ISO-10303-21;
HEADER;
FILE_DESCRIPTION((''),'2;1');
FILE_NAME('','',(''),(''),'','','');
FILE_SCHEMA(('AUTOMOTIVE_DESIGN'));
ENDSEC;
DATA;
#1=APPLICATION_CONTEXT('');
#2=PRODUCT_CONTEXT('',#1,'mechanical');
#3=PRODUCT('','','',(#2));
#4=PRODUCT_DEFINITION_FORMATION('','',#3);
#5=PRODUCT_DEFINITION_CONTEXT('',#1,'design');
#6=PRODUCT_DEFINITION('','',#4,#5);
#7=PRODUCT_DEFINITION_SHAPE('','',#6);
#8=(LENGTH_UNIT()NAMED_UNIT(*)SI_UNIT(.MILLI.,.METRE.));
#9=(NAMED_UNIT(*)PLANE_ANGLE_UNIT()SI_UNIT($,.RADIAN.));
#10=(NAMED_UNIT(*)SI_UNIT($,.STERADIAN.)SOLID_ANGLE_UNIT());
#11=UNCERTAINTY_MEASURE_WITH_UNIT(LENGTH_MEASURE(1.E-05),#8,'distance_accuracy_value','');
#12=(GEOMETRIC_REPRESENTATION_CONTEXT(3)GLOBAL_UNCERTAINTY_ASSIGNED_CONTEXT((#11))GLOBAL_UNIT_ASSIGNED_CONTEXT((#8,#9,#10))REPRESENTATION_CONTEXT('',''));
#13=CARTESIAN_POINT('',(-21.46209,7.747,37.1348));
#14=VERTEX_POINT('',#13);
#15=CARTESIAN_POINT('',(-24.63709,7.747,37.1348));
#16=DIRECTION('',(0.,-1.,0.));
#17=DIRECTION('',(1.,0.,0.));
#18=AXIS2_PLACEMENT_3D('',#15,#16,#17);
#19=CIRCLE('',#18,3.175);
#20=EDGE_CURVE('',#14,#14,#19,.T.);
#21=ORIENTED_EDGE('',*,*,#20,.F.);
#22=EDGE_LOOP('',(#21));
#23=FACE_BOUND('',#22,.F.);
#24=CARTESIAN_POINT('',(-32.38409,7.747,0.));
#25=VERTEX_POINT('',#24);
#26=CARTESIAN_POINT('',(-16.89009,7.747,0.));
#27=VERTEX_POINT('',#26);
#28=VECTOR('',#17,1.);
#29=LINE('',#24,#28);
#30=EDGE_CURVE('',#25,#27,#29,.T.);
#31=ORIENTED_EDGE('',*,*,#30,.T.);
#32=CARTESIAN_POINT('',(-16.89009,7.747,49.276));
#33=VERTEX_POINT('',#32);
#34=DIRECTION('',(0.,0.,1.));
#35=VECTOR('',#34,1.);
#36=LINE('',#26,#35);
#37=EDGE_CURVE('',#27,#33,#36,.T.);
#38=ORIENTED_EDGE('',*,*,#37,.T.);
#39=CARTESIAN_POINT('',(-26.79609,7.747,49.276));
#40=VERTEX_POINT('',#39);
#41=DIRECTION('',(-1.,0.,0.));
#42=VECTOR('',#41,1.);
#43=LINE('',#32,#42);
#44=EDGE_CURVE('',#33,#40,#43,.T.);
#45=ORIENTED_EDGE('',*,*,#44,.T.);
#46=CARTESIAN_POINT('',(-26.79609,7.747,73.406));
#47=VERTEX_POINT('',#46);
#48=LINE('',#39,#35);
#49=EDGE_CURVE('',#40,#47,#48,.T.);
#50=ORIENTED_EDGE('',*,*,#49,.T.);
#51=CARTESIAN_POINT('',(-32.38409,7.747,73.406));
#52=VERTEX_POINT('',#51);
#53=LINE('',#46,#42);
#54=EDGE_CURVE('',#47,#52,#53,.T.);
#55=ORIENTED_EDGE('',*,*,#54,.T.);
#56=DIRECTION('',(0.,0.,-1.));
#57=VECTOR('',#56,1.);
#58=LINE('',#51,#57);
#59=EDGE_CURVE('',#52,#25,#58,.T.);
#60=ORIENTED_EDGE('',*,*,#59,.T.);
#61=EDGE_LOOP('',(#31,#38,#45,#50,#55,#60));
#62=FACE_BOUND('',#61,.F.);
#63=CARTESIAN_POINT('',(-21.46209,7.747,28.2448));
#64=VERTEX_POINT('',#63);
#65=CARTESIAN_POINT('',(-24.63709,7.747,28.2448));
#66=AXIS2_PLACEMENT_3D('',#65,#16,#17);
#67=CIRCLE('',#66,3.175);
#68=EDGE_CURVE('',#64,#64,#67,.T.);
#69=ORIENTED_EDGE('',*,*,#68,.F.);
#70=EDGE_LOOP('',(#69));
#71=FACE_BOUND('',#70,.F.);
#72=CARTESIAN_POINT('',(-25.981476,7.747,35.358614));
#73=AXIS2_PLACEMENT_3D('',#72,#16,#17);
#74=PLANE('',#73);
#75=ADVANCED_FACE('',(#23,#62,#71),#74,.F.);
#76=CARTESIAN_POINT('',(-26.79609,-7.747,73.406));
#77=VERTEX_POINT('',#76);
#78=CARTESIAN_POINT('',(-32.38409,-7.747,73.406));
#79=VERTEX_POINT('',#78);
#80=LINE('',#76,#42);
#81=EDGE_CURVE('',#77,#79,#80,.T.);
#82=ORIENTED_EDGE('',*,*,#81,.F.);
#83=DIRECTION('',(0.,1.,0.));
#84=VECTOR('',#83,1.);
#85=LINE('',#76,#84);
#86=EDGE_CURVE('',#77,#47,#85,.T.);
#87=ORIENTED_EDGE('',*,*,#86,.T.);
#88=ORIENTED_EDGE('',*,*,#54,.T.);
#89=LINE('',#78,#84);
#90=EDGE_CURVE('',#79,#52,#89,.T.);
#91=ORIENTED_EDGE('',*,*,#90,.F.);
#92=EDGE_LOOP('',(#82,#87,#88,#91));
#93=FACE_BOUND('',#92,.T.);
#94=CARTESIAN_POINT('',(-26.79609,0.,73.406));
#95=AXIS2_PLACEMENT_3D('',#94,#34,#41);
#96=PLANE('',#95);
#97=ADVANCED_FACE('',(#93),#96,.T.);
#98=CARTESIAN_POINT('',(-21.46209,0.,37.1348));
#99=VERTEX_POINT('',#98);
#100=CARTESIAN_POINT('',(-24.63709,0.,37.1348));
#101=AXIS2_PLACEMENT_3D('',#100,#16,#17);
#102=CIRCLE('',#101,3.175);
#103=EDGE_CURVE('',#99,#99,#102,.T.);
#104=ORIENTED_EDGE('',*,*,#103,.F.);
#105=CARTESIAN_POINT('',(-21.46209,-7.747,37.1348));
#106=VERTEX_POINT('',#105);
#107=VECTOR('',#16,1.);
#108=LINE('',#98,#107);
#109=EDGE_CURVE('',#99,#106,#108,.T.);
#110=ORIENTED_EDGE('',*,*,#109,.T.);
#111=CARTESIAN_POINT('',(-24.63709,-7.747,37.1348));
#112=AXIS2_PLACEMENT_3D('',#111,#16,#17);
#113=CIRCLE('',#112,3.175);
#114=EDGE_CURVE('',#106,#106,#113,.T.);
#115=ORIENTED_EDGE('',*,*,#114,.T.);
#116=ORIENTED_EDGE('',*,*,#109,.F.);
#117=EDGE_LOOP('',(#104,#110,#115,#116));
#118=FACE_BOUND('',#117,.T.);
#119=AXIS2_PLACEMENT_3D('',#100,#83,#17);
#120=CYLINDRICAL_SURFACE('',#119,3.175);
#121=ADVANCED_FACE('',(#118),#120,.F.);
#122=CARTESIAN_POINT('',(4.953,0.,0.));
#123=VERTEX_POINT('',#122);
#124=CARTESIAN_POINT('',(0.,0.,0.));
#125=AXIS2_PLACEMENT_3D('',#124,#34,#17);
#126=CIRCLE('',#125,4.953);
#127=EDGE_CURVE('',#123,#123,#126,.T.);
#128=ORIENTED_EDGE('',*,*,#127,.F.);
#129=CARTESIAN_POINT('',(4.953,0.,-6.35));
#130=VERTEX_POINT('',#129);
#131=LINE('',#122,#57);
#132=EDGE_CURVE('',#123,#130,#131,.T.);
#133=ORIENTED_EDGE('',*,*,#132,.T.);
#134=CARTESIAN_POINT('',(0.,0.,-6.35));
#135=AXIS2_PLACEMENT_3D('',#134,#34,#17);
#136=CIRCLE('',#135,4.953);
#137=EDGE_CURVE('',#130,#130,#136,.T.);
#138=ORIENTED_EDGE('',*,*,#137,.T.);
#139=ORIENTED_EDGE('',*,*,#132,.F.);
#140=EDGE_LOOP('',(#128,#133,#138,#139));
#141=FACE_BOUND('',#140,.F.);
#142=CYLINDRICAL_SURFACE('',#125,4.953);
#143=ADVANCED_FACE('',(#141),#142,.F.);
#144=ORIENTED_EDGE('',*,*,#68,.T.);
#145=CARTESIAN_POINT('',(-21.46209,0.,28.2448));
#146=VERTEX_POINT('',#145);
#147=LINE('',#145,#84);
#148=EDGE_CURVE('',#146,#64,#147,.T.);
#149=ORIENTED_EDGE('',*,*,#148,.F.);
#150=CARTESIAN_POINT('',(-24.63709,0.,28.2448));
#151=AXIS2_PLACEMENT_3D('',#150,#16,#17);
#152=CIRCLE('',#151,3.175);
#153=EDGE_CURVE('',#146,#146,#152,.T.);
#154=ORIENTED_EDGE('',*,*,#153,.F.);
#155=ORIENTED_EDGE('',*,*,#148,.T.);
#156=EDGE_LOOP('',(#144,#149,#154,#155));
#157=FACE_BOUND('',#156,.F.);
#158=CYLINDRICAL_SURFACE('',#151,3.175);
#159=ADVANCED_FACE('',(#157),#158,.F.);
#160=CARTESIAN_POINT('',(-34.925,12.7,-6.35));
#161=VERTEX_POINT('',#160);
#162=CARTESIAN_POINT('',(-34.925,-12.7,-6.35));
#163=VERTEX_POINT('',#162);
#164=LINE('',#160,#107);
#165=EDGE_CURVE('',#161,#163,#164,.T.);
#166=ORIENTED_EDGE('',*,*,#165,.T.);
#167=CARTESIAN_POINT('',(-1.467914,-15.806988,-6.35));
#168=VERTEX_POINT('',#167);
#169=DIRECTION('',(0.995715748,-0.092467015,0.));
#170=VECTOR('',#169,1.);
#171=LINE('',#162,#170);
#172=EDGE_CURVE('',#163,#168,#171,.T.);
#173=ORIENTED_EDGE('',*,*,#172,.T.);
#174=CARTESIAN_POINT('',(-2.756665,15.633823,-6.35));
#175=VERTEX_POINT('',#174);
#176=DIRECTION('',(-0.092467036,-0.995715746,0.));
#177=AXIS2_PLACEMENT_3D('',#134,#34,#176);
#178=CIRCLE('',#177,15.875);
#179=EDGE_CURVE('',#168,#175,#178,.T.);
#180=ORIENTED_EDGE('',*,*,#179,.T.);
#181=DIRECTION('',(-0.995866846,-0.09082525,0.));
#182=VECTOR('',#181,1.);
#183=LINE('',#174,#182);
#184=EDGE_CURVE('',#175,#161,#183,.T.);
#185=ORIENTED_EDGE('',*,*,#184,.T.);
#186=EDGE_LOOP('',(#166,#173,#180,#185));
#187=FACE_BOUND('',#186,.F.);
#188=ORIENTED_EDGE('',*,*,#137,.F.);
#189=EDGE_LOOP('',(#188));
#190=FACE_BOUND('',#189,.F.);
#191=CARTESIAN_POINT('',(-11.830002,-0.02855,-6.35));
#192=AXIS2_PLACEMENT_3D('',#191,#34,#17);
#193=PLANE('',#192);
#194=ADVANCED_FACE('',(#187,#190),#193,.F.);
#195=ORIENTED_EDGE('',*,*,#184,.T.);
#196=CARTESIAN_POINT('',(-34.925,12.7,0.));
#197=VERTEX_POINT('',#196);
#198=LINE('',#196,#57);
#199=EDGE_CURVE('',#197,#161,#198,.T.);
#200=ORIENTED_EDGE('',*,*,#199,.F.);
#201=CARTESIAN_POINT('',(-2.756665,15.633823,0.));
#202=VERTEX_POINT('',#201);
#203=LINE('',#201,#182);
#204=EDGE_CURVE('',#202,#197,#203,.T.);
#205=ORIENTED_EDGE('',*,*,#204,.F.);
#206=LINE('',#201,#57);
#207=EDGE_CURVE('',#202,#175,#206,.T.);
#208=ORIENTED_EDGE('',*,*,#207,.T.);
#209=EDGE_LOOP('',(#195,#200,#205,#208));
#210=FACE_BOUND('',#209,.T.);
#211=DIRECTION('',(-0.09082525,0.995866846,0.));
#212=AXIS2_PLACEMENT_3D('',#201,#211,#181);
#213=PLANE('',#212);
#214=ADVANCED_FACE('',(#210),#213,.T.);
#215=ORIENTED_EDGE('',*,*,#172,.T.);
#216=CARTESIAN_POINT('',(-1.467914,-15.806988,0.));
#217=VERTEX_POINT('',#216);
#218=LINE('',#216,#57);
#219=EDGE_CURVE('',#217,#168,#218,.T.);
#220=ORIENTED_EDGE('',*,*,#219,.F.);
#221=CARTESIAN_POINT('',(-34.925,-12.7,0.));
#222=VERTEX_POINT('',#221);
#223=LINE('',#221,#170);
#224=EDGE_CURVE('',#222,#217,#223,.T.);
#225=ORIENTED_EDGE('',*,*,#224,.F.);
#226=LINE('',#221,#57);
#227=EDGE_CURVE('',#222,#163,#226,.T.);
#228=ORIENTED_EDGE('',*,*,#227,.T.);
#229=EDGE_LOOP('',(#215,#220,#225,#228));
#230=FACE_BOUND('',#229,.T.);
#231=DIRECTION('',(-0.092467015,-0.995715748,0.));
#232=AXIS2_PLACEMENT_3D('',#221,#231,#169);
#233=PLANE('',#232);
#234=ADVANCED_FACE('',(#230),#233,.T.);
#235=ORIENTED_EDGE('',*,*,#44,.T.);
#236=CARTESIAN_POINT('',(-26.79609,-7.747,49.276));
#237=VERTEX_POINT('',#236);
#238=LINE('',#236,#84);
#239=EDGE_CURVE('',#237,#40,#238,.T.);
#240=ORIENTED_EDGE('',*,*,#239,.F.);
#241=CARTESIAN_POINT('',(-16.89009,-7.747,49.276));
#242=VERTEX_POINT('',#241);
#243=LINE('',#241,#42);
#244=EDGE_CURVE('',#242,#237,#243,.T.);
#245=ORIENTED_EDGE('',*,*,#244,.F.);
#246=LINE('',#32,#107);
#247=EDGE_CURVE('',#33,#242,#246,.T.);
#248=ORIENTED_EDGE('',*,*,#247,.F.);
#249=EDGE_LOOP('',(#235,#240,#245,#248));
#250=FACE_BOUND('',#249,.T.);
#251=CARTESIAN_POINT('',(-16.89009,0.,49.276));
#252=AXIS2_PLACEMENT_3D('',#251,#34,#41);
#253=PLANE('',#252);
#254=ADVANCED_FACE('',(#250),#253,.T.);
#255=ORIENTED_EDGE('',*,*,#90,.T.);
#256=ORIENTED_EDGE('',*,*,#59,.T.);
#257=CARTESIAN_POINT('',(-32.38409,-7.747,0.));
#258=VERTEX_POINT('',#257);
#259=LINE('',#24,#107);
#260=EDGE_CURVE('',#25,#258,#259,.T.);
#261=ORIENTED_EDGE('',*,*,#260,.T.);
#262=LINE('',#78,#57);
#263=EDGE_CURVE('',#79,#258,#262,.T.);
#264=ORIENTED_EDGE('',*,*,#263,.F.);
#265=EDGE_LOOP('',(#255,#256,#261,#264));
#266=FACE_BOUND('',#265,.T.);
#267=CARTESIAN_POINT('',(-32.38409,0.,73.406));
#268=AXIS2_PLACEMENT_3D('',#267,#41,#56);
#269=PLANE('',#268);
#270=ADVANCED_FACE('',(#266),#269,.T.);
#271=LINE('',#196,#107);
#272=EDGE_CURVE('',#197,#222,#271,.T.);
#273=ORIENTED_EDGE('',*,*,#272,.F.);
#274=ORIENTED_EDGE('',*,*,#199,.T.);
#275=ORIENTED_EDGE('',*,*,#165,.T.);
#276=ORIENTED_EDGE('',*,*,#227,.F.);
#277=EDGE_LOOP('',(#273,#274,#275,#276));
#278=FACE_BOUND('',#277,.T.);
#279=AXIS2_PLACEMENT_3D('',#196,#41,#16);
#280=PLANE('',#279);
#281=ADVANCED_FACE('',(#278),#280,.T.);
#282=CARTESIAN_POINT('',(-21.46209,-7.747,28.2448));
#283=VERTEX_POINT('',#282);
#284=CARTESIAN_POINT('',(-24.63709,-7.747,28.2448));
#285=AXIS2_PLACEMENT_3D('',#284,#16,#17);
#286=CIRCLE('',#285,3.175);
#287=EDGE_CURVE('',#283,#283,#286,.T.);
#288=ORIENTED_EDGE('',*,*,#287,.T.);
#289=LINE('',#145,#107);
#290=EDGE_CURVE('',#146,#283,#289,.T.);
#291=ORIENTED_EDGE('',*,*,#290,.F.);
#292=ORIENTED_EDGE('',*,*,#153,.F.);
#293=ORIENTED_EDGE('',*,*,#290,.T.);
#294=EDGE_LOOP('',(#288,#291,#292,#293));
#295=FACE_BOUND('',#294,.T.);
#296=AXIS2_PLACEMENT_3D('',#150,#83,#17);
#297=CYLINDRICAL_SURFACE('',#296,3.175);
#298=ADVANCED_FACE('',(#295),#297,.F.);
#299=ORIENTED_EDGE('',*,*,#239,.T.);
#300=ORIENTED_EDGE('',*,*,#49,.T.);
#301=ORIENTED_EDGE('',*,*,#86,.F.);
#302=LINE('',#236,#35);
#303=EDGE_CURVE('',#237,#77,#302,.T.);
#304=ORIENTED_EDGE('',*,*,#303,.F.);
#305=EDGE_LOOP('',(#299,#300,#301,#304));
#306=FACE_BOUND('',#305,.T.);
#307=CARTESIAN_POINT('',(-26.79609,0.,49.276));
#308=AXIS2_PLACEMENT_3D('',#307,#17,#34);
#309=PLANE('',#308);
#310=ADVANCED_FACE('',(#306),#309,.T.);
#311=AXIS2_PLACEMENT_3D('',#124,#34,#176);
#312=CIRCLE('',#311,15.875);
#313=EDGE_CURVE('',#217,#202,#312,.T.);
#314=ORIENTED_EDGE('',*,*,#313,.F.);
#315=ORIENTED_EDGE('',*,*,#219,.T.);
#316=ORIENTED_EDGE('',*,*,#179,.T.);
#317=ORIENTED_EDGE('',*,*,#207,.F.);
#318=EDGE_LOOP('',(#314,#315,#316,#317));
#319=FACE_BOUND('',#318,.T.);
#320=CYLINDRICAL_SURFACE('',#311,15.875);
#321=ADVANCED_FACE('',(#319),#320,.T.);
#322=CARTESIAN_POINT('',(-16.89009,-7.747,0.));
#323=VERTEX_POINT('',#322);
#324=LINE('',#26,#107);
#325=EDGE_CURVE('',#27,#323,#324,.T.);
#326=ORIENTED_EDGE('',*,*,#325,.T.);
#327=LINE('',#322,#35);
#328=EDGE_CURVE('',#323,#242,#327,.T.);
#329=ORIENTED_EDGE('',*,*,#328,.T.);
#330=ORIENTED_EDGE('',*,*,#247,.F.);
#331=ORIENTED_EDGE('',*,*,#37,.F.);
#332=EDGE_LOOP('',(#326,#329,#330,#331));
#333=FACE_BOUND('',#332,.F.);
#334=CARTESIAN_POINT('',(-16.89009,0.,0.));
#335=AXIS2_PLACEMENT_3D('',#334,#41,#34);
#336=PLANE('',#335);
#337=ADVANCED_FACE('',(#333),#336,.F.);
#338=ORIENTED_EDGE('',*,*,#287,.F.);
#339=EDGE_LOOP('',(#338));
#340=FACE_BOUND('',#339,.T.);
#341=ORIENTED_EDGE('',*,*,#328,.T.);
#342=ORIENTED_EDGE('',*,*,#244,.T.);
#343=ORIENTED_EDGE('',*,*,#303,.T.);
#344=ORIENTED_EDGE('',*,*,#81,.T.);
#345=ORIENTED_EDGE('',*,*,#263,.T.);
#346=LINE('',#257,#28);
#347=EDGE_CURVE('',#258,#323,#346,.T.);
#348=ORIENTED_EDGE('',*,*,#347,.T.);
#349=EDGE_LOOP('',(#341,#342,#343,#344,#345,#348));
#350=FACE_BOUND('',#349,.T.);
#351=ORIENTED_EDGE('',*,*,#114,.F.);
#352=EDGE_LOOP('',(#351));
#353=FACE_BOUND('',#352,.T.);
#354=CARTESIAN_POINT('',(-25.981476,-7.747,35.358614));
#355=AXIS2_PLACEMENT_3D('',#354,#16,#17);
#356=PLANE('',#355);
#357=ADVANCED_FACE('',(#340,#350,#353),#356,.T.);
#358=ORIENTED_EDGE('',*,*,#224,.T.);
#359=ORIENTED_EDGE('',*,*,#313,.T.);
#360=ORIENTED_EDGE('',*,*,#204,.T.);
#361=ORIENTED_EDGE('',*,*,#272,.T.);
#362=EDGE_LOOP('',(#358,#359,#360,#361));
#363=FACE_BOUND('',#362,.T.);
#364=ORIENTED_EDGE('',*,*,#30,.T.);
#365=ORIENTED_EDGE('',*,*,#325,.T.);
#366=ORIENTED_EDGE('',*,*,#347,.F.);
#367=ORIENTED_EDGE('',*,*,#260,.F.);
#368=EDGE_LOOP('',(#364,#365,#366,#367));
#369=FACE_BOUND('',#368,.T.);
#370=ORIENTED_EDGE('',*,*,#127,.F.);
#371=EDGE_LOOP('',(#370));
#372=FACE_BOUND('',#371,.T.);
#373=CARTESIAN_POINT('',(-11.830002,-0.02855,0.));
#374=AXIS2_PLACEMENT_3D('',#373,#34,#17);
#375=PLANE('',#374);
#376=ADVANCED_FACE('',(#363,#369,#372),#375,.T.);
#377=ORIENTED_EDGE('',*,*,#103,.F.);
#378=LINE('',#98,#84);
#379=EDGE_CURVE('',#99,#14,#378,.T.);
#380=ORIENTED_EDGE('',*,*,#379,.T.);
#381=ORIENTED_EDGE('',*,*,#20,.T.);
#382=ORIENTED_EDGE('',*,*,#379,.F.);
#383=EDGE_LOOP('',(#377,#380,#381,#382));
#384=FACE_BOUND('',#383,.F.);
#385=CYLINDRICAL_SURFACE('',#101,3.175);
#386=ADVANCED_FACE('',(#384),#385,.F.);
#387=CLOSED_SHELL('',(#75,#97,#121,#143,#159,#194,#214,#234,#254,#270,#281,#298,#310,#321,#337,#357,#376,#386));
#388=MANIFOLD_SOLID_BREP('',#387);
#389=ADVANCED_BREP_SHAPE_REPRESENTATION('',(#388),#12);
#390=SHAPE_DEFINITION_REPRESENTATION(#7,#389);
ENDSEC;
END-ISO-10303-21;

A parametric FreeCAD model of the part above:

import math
import FreeCAD as App
import Part
import Sketcher

V = App.Vector
Q = App.Units.Quantity

doc = App.newDocument("Part")
body = doc.addObject("PartDesign::Body", "Body")

sketch1 = body.newObject("Sketcher::SketchObject", "Sketch")
sketch1.AttachmentSupport = (doc.getObject("XY_Plane"), [""])
sketch1.MapMode = "FlatFace"
sketch1.addGeometry(Part.LineSegment(V(-2.8, 15.6, 0), V(-34.9, 12.7, 0)), False)
sketch1.addGeometry(Part.LineSegment(V(-34.9, 12.7, 0), V(-34.9, -12.7, 0)), False)
sketch1.addGeometry(Part.LineSegment(V(-34.9, -12.7, 0), V(-1.5, -15.8, 0)), False)
sketch1.addGeometry(Part.ArcOfCircle(Part.Circle(V(0, 0, 0), V(0, 0, 1), 15.9), math.radians(-95), math.radians(100)), False)
sketch1.addGeometry(Part.Circle(V(0, 0, 0), V(0, 0, 1), 5), False)
sketch1.addConstraint(Sketcher.Constraint("Coincident", 0, 2, 1, 1))
sketch1.addConstraint(Sketcher.Constraint("Coincident", 1, 2, 2, 1))
sketch1.addConstraint(Sketcher.Constraint("Tangent", 2, 2, 3, 1))
sketch1.addConstraint(Sketcher.Constraint("Coincident", 3, 2, 0, 1))
sketch1.addConstraint(Sketcher.Constraint("Vertical", 1))
sketch1.addConstraint(Sketcher.Constraint("Coincident", 3, 3, -1, 1))
sketch1.addConstraint(Sketcher.Constraint("Coincident", 4, 3, -1, 1))
sketch1.addConstraint(Sketcher.Constraint("Diameter", 4, Q("0.39 in")))
sketch1.addConstraint(Sketcher.Constraint("DistanceY", 1, 2, 1, 1, Q("1 in")))
sketch1.addConstraint(Sketcher.Constraint("Radius", 3, Q("0.625 in")))
sketch1.addConstraint(Sketcher.Constraint("DistanceY", -1, 1, 0, 2, Q("0.5 in")))
sketch1.addConstraint(Sketcher.Constraint("DistanceX", 0, 2, -1, 1, Q("1.375 in")))
sketch1.addConstraint(Sketcher.Constraint("DistanceX", 3, 2, 2, 2, 1.288751))
pad1 = body.newObject("PartDesign::Pad", "Pad")
pad1.Profile = sketch1
pad1.Length = Q("0.25 in")
pad1.Reversed = True

sketch2 = body.newObject("Sketcher::SketchObject", "Sketch001")
sketch2.AttachmentSupport = (doc.getObject("XZ_Plane"), [""])
sketch2.MapMode = "FlatFace"
sketch2.addGeometry(Part.LineSegment(V(-32.4, 73.4, 0), V(-32.4, 0, 0)), False)
sketch2.addGeometry(Part.LineSegment(V(-32.4, 0, 0), V(-16.9, 0, 0)), False)
sketch2.addGeometry(Part.LineSegment(V(-16.9, 0, 0), V(-16.9, 49.3, 0)), False)
sketch2.addGeometry(Part.LineSegment(V(-16.9, 49.3, 0), V(-26.8, 49.3, 0)), False)
sketch2.addGeometry(Part.LineSegment(V(-26.8, 49.3, 0), V(-26.8, 73.4, 0)), False)
sketch2.addGeometry(Part.LineSegment(V(-26.8, 73.4, 0), V(-32.4, 73.4, 0)), False)
sketch2.addGeometry(Part.Circle(V(-24.6, 28.2, 0), V(0, 0, 1), 3.2), False)
sketch2.addGeometry(Part.Circle(V(-24.6, 37.1, 0), V(0, 0, 1), 3.2), False)
sketch2.addConstraint(Sketcher.Constraint("Coincident", 0, 2, 1, 1))
sketch2.addConstraint(Sketcher.Constraint("Coincident", 1, 2, 2, 1))
sketch2.addConstraint(Sketcher.Constraint("Coincident", 2, 2, 3, 1))
sketch2.addConstraint(Sketcher.Constraint("Coincident", 3, 2, 4, 1))
sketch2.addConstraint(Sketcher.Constraint("Coincident", 4, 2, 5, 1))
sketch2.addConstraint(Sketcher.Constraint("Coincident", 5, 2, 0, 1))
sketch2.addConstraint(Sketcher.Constraint("Vertical", 0))
sketch2.addConstraint(Sketcher.Constraint("Horizontal", 1))
sketch2.addConstraint(Sketcher.Constraint("Vertical", 2))
sketch2.addConstraint(Sketcher.Constraint("Horizontal", 3))
sketch2.addConstraint(Sketcher.Constraint("Vertical", 4))
sketch2.addConstraint(Sketcher.Constraint("Horizontal", 5))
sketch2.addConstraint(Sketcher.Constraint("Equal", 6, 7))
sketch2.addConstraint(Sketcher.Constraint("PointOnObject", 0, 2, -1))
sketch2.addConstraint(Sketcher.Constraint("Vertical", 6, 3, 7, 3))
sketch2.addConstraint(Sketcher.Constraint("Diameter", 6, Q("0.25 in")))
sketch2.addConstraint(Sketcher.Constraint("DistanceX", 1, 1, 1, 2, Q("0.61 in")))
sketch2.addConstraint(Sketcher.Constraint("DistanceX", 3, 2, 3, 1, Q("0.39 in")))
sketch2.addConstraint(Sketcher.Constraint("DistanceY", 0, 2, 0, 1, Q("2.89 in")))
sketch2.addConstraint(Sketcher.Constraint("DistanceY", 2, 1, 2, 2, Q("1.94 in")))
sketch2.addConstraint(Sketcher.Constraint("DistanceY", 6, 3, 7, 3, Q("0.35 in")))
sketch2.addConstraint(Sketcher.Constraint("DistanceY", -1, 1, 6, 3, Q("1.112 in")))
sketch2.addConstraint(Sketcher.Constraint("DistanceX", 0, 2, 6, 3, Q("0.305 in")))
sketch2.addConstraint(Sketcher.Constraint("DistanceX", 6, 3, -1, 1, 24.63709))
pad2 = body.newObject("PartDesign::Pad", "Pad001")
pad2.Profile = sketch2
pad2.Type = "TwoLengths"
pad2.Length = Q("0.305 in")
pad2.Length2 = Q("0.305 in")

doc.recompute()
